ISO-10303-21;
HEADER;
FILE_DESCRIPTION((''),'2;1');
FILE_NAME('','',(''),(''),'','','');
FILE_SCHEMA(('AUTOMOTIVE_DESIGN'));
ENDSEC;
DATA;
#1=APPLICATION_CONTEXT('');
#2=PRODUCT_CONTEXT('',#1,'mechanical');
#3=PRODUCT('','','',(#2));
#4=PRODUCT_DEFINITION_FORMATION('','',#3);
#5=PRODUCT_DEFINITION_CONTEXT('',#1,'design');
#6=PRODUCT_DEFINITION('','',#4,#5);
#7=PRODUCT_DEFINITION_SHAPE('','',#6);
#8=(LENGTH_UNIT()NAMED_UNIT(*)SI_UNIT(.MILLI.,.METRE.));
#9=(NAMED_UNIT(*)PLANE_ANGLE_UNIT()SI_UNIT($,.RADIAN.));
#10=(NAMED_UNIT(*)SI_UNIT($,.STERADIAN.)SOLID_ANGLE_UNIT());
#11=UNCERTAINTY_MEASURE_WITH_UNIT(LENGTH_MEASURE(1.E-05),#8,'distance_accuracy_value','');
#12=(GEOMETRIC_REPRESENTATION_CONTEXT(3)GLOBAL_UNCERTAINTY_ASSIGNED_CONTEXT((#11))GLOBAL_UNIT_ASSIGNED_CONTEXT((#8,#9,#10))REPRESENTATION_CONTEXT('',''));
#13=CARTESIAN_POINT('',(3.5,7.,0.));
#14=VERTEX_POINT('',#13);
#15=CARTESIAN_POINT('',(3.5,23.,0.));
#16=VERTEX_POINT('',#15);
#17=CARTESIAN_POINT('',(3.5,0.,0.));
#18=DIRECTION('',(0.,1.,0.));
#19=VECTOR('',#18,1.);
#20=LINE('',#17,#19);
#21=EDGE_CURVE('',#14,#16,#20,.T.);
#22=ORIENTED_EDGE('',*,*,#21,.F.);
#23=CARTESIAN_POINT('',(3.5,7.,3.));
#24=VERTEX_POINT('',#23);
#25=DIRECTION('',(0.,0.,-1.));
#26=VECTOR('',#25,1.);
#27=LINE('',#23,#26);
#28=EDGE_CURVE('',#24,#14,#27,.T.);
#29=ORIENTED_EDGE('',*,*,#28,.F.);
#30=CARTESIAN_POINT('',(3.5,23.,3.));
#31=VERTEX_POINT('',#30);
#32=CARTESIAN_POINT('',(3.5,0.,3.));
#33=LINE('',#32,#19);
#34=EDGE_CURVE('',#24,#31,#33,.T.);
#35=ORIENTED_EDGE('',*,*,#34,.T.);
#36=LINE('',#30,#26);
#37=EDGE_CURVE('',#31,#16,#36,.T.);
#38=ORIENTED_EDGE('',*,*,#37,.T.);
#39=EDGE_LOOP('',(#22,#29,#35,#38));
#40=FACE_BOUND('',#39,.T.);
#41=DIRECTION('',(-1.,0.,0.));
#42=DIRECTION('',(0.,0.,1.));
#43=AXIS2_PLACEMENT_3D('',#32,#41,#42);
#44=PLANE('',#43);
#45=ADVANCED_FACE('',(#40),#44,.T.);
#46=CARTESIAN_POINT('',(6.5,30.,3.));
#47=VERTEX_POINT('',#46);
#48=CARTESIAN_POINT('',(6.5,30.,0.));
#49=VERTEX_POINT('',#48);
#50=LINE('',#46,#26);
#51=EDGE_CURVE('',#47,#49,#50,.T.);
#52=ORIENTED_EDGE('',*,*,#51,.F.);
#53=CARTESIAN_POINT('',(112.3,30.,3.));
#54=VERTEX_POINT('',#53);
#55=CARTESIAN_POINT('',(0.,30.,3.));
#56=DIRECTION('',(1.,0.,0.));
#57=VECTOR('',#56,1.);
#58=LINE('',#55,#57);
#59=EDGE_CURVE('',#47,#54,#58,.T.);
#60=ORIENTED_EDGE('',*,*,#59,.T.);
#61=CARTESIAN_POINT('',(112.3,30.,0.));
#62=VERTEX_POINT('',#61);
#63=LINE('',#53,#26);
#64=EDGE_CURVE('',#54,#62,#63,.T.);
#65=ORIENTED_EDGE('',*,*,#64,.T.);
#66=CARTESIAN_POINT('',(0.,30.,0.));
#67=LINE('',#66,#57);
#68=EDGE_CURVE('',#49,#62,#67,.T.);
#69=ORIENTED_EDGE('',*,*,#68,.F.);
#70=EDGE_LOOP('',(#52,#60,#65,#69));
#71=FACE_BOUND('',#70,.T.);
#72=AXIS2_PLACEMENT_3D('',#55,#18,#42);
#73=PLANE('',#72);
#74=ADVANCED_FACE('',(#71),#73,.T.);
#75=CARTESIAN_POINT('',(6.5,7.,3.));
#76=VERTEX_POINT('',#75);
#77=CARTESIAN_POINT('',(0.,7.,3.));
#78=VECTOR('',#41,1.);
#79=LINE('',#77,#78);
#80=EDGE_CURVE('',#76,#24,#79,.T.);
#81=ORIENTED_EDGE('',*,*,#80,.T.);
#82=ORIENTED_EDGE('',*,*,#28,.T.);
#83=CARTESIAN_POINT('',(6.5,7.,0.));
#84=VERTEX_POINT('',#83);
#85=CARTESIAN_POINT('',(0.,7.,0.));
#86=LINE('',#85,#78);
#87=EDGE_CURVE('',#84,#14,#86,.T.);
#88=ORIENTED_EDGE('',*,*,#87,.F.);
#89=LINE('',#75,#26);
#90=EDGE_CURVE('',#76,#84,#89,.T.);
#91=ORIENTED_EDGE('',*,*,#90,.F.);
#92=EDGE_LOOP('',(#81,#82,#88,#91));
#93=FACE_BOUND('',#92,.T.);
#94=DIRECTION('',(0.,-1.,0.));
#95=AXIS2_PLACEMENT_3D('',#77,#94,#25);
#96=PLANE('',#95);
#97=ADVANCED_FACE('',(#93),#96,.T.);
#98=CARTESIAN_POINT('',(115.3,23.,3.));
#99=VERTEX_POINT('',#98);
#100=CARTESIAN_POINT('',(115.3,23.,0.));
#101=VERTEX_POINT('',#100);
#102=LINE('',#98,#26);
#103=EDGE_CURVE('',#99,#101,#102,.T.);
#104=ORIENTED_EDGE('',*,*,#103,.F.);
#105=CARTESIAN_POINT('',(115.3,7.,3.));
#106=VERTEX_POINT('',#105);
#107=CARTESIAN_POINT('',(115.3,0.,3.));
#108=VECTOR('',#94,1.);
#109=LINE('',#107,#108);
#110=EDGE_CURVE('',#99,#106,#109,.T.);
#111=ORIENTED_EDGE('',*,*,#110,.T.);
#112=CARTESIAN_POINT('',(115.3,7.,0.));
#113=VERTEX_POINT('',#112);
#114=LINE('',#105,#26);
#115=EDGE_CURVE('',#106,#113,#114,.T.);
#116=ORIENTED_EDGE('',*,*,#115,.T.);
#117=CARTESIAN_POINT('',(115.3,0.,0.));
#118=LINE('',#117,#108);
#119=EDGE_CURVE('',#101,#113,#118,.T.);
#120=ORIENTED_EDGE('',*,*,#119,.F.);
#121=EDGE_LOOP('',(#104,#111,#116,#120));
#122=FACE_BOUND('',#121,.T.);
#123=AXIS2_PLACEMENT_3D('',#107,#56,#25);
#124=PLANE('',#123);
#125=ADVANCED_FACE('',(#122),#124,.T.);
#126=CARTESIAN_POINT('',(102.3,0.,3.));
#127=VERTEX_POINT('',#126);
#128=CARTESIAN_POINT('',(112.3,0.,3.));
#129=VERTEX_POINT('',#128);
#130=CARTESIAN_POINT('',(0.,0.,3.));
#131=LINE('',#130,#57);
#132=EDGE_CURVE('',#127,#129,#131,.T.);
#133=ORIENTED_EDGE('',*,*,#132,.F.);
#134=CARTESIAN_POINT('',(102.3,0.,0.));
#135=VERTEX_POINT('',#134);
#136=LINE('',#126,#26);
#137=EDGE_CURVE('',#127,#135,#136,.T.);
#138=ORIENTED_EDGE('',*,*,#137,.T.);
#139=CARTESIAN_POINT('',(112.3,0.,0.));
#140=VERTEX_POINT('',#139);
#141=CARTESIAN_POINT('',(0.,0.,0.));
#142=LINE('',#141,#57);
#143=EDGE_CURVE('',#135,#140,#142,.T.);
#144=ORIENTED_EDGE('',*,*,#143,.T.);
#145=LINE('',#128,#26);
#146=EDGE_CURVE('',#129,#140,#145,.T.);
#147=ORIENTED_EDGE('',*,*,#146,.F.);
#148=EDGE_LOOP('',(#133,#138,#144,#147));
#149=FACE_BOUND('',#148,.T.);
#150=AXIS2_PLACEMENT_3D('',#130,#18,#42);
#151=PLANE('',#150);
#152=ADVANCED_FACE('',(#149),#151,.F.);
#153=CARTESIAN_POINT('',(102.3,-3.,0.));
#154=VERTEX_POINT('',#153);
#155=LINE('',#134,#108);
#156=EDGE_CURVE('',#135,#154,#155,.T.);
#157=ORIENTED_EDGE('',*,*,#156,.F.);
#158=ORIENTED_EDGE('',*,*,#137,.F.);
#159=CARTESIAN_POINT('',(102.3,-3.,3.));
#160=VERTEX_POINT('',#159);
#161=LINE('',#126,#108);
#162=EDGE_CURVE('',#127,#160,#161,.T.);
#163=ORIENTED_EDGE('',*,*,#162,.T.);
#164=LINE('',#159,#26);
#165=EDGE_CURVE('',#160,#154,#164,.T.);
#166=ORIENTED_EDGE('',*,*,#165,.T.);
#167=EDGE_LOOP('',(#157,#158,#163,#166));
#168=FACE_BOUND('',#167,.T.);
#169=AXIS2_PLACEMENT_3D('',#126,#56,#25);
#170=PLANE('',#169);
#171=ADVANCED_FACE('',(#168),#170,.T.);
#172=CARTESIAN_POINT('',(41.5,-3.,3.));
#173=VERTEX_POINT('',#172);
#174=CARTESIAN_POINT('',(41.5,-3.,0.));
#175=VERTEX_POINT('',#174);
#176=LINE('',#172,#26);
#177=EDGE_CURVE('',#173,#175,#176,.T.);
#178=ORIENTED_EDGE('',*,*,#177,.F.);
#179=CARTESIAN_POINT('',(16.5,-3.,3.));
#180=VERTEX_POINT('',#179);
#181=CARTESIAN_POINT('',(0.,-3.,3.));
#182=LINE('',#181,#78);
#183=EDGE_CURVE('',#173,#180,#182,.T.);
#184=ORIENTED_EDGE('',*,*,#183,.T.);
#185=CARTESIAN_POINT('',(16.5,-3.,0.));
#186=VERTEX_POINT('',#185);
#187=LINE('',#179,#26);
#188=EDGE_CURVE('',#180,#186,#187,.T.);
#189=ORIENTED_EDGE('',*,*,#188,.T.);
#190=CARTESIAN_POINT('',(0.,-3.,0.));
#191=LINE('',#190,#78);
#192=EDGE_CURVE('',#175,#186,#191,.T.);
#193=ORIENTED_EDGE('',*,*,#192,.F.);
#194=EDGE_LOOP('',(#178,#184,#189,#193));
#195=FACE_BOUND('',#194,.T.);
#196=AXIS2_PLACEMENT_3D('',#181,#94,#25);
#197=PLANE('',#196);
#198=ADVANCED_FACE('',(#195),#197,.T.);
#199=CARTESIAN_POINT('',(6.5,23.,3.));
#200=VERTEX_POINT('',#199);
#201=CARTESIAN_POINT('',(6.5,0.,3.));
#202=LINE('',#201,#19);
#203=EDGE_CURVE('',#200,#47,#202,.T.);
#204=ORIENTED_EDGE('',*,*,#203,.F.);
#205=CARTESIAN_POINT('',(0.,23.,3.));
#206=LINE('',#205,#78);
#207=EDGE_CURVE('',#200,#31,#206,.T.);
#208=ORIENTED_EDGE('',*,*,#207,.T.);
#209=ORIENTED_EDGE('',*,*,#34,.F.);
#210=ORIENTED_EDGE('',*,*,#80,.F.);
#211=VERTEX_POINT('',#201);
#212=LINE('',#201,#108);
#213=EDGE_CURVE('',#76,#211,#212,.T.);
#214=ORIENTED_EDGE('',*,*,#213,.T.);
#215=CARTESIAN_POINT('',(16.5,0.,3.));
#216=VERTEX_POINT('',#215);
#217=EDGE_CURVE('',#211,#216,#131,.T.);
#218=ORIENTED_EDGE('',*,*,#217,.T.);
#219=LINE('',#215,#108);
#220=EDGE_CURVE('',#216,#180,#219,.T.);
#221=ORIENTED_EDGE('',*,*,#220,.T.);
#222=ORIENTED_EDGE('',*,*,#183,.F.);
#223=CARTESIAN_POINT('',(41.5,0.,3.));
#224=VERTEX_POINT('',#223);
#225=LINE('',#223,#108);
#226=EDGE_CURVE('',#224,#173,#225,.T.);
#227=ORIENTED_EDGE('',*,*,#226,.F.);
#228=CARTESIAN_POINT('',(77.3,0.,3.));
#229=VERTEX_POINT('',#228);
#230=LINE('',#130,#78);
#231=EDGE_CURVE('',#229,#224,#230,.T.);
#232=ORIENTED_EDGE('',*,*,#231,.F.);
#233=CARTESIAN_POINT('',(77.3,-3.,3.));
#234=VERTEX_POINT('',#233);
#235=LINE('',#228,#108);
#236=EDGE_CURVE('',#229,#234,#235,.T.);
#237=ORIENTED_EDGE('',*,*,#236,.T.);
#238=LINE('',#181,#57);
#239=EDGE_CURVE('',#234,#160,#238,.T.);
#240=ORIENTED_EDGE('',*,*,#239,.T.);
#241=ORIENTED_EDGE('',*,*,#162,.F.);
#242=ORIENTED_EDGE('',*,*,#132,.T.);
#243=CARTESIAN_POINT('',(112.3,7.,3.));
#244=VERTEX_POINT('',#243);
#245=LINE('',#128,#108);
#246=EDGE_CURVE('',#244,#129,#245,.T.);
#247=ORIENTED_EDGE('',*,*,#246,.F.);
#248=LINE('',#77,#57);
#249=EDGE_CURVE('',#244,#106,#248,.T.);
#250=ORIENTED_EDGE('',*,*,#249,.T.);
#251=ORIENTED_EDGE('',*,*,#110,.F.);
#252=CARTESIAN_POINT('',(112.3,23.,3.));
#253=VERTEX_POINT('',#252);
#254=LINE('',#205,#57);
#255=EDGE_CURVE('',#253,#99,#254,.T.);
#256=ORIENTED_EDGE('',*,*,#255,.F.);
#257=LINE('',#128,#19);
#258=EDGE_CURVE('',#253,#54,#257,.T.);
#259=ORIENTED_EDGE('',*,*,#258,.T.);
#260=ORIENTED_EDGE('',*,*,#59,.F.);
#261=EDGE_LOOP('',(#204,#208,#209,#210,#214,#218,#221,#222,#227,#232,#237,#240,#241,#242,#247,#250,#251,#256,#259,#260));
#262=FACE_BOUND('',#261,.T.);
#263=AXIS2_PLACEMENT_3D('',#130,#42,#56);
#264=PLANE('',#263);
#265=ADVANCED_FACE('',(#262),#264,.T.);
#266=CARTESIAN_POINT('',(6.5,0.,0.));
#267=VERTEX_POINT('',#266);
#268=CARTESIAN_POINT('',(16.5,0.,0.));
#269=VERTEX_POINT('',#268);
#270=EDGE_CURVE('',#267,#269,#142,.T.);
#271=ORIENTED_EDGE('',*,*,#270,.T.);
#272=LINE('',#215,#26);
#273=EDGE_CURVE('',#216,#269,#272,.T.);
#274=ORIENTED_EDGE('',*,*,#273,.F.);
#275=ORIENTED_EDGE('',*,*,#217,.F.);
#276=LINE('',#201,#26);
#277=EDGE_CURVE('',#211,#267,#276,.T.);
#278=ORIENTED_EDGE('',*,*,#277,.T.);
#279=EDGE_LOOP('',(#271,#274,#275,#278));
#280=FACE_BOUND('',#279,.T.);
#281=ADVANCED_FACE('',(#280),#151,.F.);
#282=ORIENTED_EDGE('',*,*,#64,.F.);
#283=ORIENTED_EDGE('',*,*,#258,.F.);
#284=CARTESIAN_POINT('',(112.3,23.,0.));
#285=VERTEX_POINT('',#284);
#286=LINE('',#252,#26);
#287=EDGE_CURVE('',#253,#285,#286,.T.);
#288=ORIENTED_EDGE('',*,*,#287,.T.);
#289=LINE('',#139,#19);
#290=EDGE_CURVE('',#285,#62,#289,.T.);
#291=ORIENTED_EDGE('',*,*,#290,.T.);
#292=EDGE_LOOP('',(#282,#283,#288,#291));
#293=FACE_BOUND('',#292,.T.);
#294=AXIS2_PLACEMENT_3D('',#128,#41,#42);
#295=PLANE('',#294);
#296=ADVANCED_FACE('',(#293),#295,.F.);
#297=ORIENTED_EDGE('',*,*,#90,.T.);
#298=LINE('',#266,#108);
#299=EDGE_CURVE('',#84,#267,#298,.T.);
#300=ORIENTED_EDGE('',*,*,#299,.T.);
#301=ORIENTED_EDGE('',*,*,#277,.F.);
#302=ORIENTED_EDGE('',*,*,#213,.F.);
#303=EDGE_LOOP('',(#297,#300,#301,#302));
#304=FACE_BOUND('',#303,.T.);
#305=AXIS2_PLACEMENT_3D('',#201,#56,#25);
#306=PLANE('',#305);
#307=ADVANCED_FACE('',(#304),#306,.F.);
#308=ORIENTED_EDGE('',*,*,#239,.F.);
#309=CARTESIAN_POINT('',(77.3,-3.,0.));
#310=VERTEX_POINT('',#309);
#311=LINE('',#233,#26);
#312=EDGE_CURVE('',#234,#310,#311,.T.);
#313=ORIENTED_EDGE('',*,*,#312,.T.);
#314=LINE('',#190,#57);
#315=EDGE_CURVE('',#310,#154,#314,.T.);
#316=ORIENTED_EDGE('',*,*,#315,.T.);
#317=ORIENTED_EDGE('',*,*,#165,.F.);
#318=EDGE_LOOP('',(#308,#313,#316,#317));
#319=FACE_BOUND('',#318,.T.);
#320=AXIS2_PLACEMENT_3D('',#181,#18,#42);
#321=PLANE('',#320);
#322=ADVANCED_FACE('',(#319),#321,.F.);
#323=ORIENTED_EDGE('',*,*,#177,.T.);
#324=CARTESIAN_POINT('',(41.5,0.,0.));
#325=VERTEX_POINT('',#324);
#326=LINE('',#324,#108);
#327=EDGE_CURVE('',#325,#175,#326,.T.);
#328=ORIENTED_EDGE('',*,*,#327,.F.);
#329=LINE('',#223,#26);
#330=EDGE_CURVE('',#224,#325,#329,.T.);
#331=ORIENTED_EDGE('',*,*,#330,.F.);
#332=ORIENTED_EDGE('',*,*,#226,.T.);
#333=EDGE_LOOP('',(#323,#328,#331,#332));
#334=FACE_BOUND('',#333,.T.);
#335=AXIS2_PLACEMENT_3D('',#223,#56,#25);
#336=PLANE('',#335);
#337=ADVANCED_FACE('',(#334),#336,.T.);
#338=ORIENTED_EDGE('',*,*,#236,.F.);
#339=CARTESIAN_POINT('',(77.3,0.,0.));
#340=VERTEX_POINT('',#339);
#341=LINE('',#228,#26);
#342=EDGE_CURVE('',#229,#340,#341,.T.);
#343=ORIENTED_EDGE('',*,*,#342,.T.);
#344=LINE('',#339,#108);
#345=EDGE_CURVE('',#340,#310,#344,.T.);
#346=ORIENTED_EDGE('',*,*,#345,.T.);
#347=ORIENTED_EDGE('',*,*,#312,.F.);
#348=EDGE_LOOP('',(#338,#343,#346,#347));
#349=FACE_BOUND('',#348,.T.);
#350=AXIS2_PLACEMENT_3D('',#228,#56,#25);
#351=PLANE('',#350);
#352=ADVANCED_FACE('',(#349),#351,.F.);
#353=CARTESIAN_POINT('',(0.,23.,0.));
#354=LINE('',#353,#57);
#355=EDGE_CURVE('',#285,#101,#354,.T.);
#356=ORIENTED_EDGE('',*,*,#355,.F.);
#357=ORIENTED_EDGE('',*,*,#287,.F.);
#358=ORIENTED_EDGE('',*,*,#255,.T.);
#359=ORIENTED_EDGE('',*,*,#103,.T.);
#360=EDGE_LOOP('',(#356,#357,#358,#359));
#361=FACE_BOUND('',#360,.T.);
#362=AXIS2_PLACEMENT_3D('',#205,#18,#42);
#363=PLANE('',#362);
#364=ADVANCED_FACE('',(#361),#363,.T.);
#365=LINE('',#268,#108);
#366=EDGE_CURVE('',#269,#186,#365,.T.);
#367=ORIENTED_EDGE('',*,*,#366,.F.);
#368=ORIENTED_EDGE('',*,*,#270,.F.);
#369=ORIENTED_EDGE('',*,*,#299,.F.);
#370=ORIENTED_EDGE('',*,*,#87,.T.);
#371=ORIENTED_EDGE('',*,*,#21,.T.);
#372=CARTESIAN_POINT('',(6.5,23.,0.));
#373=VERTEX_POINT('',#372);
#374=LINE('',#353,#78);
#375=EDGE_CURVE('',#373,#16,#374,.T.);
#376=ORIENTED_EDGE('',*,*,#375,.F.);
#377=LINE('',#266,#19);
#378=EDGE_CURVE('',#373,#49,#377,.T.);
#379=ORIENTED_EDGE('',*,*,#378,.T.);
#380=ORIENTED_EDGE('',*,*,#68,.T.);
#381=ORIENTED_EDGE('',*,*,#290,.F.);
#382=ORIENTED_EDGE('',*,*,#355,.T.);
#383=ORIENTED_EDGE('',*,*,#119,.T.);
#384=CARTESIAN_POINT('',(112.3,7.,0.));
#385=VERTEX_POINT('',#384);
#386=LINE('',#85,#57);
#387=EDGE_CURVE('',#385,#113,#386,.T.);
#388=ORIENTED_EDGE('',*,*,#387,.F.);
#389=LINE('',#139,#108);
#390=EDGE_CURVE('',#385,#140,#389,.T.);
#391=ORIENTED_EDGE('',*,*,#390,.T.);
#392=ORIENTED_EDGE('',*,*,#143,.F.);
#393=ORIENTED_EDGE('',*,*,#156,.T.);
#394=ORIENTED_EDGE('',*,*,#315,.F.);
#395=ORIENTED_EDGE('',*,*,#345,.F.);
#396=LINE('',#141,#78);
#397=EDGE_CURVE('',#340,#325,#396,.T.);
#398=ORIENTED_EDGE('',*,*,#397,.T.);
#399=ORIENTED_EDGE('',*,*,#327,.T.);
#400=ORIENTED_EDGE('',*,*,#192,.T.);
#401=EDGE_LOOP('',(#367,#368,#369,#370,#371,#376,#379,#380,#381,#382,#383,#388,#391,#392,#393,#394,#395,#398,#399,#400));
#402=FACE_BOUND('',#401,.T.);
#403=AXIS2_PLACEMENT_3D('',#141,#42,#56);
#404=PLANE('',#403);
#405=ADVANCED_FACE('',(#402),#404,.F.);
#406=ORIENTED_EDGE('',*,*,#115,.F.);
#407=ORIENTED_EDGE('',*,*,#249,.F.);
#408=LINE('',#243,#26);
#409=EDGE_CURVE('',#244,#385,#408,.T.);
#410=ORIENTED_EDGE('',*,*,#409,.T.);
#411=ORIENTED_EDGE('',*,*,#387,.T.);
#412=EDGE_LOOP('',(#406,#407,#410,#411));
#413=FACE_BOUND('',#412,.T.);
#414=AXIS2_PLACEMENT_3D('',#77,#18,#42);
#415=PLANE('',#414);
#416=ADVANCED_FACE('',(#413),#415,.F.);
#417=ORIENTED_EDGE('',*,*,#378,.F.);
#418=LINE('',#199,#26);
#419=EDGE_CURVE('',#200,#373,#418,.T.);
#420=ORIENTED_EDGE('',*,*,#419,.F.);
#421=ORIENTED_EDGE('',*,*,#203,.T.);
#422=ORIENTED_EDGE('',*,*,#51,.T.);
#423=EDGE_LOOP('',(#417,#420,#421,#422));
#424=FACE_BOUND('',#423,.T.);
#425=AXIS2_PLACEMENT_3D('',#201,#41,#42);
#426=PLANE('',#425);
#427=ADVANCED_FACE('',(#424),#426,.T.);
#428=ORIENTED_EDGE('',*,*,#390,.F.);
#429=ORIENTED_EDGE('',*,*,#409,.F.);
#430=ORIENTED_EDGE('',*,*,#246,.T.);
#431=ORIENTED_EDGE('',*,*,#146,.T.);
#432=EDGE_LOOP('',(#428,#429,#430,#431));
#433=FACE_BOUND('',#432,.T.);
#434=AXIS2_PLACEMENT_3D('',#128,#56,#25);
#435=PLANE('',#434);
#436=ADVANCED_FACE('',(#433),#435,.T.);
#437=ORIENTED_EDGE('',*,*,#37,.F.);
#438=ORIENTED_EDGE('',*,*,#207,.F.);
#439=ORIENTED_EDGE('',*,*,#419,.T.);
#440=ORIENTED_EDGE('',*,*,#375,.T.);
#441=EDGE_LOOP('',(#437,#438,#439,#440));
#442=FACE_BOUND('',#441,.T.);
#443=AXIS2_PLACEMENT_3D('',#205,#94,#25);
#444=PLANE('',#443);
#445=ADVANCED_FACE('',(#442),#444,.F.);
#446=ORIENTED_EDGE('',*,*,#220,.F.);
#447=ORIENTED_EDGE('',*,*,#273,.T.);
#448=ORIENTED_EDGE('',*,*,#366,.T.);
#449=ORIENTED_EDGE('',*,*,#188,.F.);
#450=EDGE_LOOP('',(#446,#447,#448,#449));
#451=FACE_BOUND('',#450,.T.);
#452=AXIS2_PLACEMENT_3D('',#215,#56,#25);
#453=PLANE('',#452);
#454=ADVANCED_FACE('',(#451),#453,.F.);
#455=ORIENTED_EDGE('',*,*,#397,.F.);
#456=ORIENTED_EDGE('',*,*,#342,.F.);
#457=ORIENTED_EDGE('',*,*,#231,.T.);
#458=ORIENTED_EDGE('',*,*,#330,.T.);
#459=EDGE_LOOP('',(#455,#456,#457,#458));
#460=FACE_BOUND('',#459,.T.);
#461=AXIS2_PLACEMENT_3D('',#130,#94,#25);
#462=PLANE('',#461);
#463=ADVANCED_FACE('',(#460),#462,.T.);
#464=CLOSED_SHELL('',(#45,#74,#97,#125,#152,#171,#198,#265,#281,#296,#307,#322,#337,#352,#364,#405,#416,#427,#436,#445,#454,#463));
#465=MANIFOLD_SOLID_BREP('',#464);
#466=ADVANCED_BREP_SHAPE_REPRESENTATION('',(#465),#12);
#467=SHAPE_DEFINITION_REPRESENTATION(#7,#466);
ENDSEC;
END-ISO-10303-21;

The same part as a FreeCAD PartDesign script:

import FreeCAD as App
import Part
import Sketcher
from FreeCAD import Vector


def add_polygon(sketch, points):
    """Adds a closed chain of lines whose ends are joined by coincident constraints."""
    first, n = sketch.GeometryCount, len(points)
    for a, b in zip(points, points[1:] + points[:1]):
        sketch.addGeometry(Part.LineSegment(App.Vector(*a, 0), App.Vector(*b, 0)), False)
    for i in range(n):
        sketch.addConstraint(Sketcher.Constraint("Coincident", first + i, 2, first + (i + 1) % n, 1))

doc = App.newDocument("Part")
params = doc.addObject("Spreadsheet::Sheet", "Params")
for row, (alias, value) in enumerate([
    ("sketch1_width", "10 mm"),
    ("sketch1_width2", "25 mm"),
    ("sketch1_width3", "3 mm"),
    ("sketch1_height", "7 mm"),
    ("sketch1_height2", "16 mm"),
    ("pad1_length", "3 mm"),
], start=1):
    params.set(f"A{row}", alias)
    params.set(f"B{row}", "=" + value)
    params.setAlias(f"B{row}", alias)

body = doc.addObject("PartDesign::Body", "Body")

# Sketch on XY plane
sketch1 = doc.addObject("Sketcher::SketchObject", "Sketch")
body.addObject(sketch1)
sketch1.AttachmentSupport = (doc.XY_Plane, [""])
sketch1.MapMode = "FlatFace"
add_polygon(sketch1, [(6.5, 0), (16.5, 0), (16.5, -3), (41.5, -3), (41.5, 0), (77.3, 0), (77.3, -3), (102.3, -3), (102.3, 0), (112.3, 0), (112.3, 7), (115.3, 7), (115.3, 23), (112.3, 23), (112.3, 30), (6.5, 30), (6.5, 23), (3.5, 23), (3.5, 7), (6.5, 7)])  # lines 0-19
sketch1.addConstraint(Sketcher.Constraint("Horizontal", 0))
sketch1.addConstraint(Sketcher.Constraint("Vertical", 1))
sketch1.addConstraint(Sketcher.Constraint("Horizontal", 2))
sketch1.addConstraint(Sketcher.Constraint("Vertical", 3))
sketch1.addConstraint(Sketcher.Constraint("Horizontal", 4))
sketch1.addConstraint(Sketcher.Constraint("Vertical", 5))
sketch1.addConstraint(Sketcher.Constraint("Horizontal", 6))
sketch1.addConstraint(Sketcher.Constraint("Vertical", 7))
sketch1.addConstraint(Sketcher.Constraint("Horizontal", 8))
sketch1.addConstraint(Sketcher.Constraint("Vertical", 9))
sketch1.addConstraint(Sketcher.Constraint("Horizontal", 10))
sketch1.addConstraint(Sketcher.Constraint("Vertical", 11))
sketch1.addConstraint(Sketcher.Constraint("Horizontal", 12))
sketch1.addConstraint(Sketcher.Constraint("Vertical", 13))
sketch1.addConstraint(Sketcher.Constraint("Horizontal", 14))
sketch1.addConstraint(Sketcher.Constraint("Vertical", 15))
sketch1.addConstraint(Sketcher.Constraint("Horizontal", 16))
sketch1.addConstraint(Sketcher.Constraint("Vertical", 17))
sketch1.addConstraint(Sketcher.Constraint("Horizontal", 18))
sketch1.addConstraint(Sketcher.Constraint("Vertical", 19))
sketch1.addConstraint(Sketcher.Constraint("PointOnObject", 0, 2, -1))
sketch1.addConstraint(Sketcher.Constraint("PointOnObject", 3, 2, -1))
sketch1.addConstraint(Sketcher.Constraint("PointOnObject", 7, 2, -1))
sketch1.addConstraint(Sketcher.Constraint("Horizontal", 2, 2, 5, 2))
sketch1.addConstraint(Sketcher.Constraint("Horizontal", 12, 2, 15, 2))
sketch1.addConstraint(Sketcher.Constraint("Horizontal", 10, 2, 17, 2))
sketch1.addConstraint(Sketcher.Constraint("Vertical", 9, 2, 12, 2))
sketch1.addConstraint(Sketcher.Constraint("Vertical", 15, 2, 18, 2))
sketch1.addConstraint(Sketcher.Constraint("Equal", 2, 6))
sketch1.addConstraint(Sketcher.Constraint("Equal", 0, 8))
sketch1.addConstraint(Sketcher.Constraint("Equal", 12, 16))
sketch1.addConstraint(Sketcher.Constraint("Equal", 18, 1))
sketch1.addConstraint(Sketcher.Constraint("Equal", 9, 13))
sketch1.addConstraint(Sketcher.Constraint("DistanceX", 0, 1, 0, 2, 10.0))
sketch1.addConstraint(Sketcher.Constraint("DistanceX", 2, 1, 2, 2, 25.0))
sketch1.addConstraint(Sketcher.Constraint("DistanceX", 10, 1, 10, 2, 3.0))
sketch1.addConstraint(Sketcher.Constraint("DistanceY", 9, 1, 9, 2, 7.0))
sketch1.addConstraint(Sketcher.Constraint("DistanceY", 11, 1, 11, 2, 16.0))
sketch1.addConstraint(Sketcher.Constraint("DistanceX", 4, 1, 4, 2, 35.8))
sketch1.addConstraint(Sketcher.Constraint("DistanceX", -1, 1, 0, 2, 16.5))
sketch1.setExpression("Constraints[53]", "Params.sketch1_width")
sketch1.setExpression("Constraints[54]", "Params.sketch1_width2")
sketch1.setExpression("Constraints[55]", "Params.sketch1_width3")
sketch1.setExpression("Constraints[56]", "Params.sketch1_height")
sketch1.setExpression("Constraints[57]", "Params.sketch1_height2")
pad1 = doc.addObject("PartDesign::Pad", "Pad")
body.addObject(pad1)
pad1.Profile = sketch1
pad1.setExpression("Length", "Params.pad1_length")

doc.recompute()
